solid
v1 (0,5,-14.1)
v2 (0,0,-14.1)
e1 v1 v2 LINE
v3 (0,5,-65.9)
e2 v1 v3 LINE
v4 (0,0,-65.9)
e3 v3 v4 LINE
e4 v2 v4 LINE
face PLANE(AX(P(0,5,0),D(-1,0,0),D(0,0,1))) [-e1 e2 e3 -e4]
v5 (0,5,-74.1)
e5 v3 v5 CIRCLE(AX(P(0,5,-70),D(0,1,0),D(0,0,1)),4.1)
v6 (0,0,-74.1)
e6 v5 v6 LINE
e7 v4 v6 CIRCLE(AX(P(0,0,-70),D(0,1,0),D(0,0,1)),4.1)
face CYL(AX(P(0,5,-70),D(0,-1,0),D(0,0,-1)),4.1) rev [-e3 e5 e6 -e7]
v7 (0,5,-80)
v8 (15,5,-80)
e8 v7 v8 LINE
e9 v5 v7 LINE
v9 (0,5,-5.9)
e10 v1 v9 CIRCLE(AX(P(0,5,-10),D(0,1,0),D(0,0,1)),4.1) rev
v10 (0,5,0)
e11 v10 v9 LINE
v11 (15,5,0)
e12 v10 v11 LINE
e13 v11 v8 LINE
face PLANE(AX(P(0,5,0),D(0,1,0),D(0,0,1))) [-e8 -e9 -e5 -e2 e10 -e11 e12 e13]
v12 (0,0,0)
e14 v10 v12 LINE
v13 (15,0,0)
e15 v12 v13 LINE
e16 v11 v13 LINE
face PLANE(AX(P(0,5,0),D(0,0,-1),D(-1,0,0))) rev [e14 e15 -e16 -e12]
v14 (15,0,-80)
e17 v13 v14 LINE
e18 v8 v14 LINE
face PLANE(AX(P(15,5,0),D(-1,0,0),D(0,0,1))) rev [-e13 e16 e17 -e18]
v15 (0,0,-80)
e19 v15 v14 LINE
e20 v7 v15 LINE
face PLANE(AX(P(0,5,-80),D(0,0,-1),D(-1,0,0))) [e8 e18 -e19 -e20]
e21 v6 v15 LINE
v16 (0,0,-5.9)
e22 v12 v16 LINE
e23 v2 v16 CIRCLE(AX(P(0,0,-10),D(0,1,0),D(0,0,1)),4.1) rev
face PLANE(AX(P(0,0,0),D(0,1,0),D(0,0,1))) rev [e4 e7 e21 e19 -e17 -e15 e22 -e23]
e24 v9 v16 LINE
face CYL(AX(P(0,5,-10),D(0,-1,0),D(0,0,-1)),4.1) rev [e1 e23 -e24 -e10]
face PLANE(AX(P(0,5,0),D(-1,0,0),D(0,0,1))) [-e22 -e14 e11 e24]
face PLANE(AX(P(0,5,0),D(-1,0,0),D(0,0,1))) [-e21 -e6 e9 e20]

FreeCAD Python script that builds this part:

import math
import FreeCAD as App
import Part
import Sketcher

doc = App.newDocument("Part")
body = doc.addObject("PartDesign::Body", "Body")

# Sketch on XZ plane
sketch1 = doc.addObject("Sketcher::SketchObject", "Sketch")
body.addObject(sketch1)
sketch1.AttachmentSupport = (doc.XZ_Plane, [""])
sketch1.MapMode = "FlatFace"
sketch1.addGeometry(Part.ArcOfCircle(Part.Circle(App.Vector(0, -10, 0), App.Vector(0, 0, 1), 4.1), math.radians(-90), math.radians(0)), False)
sketch1.addGeometry(Part.ArcOfCircle(Part.Circle(App.Vector(0, -10, 0), App.Vector(0, 0, 1), 4.1), math.radians(0), math.radians(90)), False)
sketch1.addGeometry(Part.LineSegment(App.Vector(0, -5.9, 0), App.Vector(0, 0, 0)), False)
sketch1.addGeometry(Part.LineSegment(App.Vector(0, 0, 0), App.Vector(15, 0, 0)), False)
sketch1.addGeometry(Part.LineSegment(App.Vector(15, 0, 0), App.Vector(15, -80, 0)), False)
sketch1.addGeometry(Part.LineSegment(App.Vector(15, -80, 0), App.Vector(0, -80, 0)), False)
sketch1.addGeometry(Part.LineSegment(App.Vector(0, -80, 0), App.Vector(0, -74.1, 0)), False)
sketch1.addGeometry(Part.ArcOfCircle(Part.Circle(App.Vector(0, -70, 0), App.Vector(0, 0, 1), 4.1), math.radians(-90), math.radians(0)), False)
sketch1.addGeometry(Part.ArcOfCircle(Part.Circle(App.Vector(0, -70, 0), App.Vector(0, 0, 1), 4.1), math.radians(0), math.radians(90)), False)
sketch1.addGeometry(Part.LineSegment(App.Vector(0, -65.9, 0), App.Vector(0, -14.1, 0)), False)
sketch1.addConstraint(Sketcher.Constraint("Tangent", 0, 2, 1, 1))
sketch1.addConstraint(Sketcher.Constraint("Coincident", 1, 2, 2, 1))
sketch1.addConstraint(Sketcher.Constraint("Coincident", 2, 2, 3, 1))
sketch1.addConstraint(Sketcher.Constraint("Coincident", 3, 2, 4, 1))
sketch1.addConstraint(Sketcher.Constraint("Coincident", 4, 2, 5, 1))
sketch1.addConstraint(Sketcher.Constraint("Coincident", 5, 2, 6, 1))
sketch1.addConstraint(Sketcher.Constraint("Coincident", 6, 2, 7, 1))
sketch1.addConstraint(Sketcher.Constraint("Tangent", 7, 2, 8, 1))
sketch1.addConstraint(Sketcher.Constraint("Coincident", 8, 2, 9, 1))
sketch1.addConstraint(Sketcher.Constraint("Coincident", 9, 2, 0, 1))
sketch1.addConstraint(Sketcher.Constraint("Vertical", 2))
sketch1.addConstraint(Sketcher.Constraint("Horizontal", 3))
sketch1.addConstraint(Sketcher.Constraint("Vertical", 4))
sketch1.addConstraint(Sketcher.Constraint("Horizontal", 5))
sketch1.addConstraint(Sketcher.Constraint("Vertical", 6))
sketch1.addConstraint(Sketcher.Constraint("Vertical", 9))
sketch1.addConstraint(Sketcher.Constraint("Coincident", 2, 2, -1, 1))
sketch1.addConstraint(Sketcher.Constraint("Equal", 0, 1))
sketch1.addConstraint(Sketcher.Constraint("Equal", 1, 7))
sketch1.addConstraint(Sketcher.Constraint("Equal", 7, 8))
sketch1.addConstraint(Sketcher.Constraint("PointOnObject", 0, 3, -2))
sketch1.addConstraint(Sketcher.Constraint("PointOnObject", 7, 3, -2))
sketch1.addConstraint(Sketcher.Constraint("PointOnObject", 5, 2, -2))
sketch1.addConstraint(Sketcher.Constraint("PointOnObject", 8, 2, -2))
sketch1.addConstraint(Sketcher.Constraint("Horizontal", 1, 3, 0, 2))
sketch1.addConstraint(Sketcher.Constraint("Horizontal", 8, 3, 7, 2))
sketch1.addConstraint(Sketcher.Constraint("Equal", 2, 6))
sketch1.addConstraint(Sketcher.Constraint("Radius", 0, 4.1))
sketch1.addConstraint(Sketcher.Constraint("DistanceX", 3, 1, 3, 2, 15.0))
sketch1.addConstraint(Sketcher.Constraint("DistanceY", 4, 2, 4, 1, 80.0))
sketch1.addConstraint(Sketcher.Constraint("DistanceY", 2, 1, 2, 2, 5.9))
pad1 = doc.addObject("PartDesign::Pad", "Pad")
body.addObject(pad1)
pad1.Profile = sketch1
pad1.Length = 5
pad1.Reversed = True

doc.recompute()
